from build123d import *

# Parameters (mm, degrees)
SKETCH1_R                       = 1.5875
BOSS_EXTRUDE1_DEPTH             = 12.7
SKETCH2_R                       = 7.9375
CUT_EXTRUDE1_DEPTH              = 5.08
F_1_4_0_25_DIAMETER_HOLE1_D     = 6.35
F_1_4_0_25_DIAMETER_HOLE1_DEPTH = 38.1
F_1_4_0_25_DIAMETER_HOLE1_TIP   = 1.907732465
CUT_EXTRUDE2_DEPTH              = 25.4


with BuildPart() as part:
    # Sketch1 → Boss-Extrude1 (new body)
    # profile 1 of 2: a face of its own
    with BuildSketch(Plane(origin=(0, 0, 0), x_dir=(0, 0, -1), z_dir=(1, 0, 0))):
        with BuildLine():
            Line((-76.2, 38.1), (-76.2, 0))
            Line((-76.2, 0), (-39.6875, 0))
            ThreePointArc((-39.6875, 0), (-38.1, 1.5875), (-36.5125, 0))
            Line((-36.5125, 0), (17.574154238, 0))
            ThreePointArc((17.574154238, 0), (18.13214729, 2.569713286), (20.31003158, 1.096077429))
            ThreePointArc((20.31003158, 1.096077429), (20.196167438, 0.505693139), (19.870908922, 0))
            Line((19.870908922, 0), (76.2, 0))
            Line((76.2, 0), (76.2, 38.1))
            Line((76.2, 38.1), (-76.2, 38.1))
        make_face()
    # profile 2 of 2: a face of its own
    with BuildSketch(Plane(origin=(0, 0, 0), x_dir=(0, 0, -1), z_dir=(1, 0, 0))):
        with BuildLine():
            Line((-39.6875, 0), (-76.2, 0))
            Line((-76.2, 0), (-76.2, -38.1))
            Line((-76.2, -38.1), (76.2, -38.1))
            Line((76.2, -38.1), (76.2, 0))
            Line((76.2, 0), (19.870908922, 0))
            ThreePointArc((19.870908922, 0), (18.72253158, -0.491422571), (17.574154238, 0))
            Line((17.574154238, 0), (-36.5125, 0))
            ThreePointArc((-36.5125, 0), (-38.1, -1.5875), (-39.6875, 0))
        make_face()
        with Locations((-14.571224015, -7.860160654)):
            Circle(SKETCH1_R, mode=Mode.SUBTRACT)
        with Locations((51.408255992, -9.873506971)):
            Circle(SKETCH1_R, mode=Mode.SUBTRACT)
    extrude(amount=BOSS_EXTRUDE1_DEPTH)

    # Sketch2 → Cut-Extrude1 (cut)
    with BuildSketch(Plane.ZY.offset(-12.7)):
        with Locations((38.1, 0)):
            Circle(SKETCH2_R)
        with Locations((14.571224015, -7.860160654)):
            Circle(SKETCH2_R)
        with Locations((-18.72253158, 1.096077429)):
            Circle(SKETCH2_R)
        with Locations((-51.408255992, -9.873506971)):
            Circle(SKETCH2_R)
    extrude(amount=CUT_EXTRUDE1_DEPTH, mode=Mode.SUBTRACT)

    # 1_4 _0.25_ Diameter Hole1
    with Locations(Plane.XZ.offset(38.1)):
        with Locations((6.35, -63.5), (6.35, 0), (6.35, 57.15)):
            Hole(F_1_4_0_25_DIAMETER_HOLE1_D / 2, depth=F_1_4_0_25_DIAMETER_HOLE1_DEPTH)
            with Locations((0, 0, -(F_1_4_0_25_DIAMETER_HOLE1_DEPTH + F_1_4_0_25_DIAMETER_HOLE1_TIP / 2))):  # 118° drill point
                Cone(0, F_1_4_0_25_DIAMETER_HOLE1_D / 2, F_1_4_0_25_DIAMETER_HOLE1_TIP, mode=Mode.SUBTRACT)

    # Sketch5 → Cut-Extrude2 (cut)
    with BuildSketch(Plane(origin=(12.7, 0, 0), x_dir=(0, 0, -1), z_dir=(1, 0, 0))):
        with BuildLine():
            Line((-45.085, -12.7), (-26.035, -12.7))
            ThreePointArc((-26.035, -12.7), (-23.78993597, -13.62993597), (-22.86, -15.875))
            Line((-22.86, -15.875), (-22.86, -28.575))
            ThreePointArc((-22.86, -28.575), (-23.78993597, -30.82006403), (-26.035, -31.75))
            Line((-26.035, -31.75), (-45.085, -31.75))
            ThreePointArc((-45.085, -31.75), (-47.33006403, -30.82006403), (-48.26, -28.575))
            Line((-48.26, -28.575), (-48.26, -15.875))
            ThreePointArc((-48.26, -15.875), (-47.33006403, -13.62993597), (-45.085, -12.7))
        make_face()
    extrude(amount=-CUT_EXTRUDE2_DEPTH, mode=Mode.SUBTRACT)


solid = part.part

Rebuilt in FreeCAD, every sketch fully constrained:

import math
import FreeCAD as App
import Part
import Sketcher

V = App.Vector
Q = App.Units.Quantity


def add_polygon(sketch, points):
    """Adds a closed chain of lines whose ends are joined by coincident constraints."""
    first, n = sketch.GeometryCount, len(points)
    for a, b in zip(points, points[1:] + points[:1]):
        sketch.addGeometry(Part.LineSegment(App.Vector(*a, 0), App.Vector(*b, 0)), False)
    for i in range(n):
        sketch.addConstraint(Sketcher.Constraint("Coincident", first + i, 2, first + (i + 1) % n, 1))

doc = App.newDocument("Part")
params = doc.addObject("Spreadsheet::Sheet", "Params")
for row, (alias, value) in enumerate([
    ("sketch1_width", "3 in"),
    ("sketch1_height", "6 in"),
    ("sketch1_diameter", "0.125 in"),
    ("pad1_length", "0.5 in"),
    ("sketch2_diameter", "0.625 in"),
    ("pocket1_length", "0.2 in"),
    ("sketch3_diameter", "0.25 in"),
    ("hole_diameter", "0.25 in"),
    ("hole_depth", "1.5 in"),
    ("sketch4_width", "0.5 in"),
    ("sketch4_radius", "0.125 in"),
    ("sketch4_height", "0.75 in"),
    ("pocket2_length", "1 in"),
], start=1):
    params.set(f"A{row}", alias)
    params.set(f"B{row}", "=" + value)
    params.setAlias(f"B{row}", alias)

body = doc.addObject("PartDesign::Body", "Body")

sketch1 = body.newObject("Sketcher::SketchObject", "Sketch")
sketch1.AttachmentSupport = (doc.getObject("YZ_Plane"), [""])
sketch1.MapMode = "FlatFace"
add_polygon(sketch1, [(38.1, 76.2), (-38.1, 76.2), (-38.1, -76.2), (38.1, -76.2)])
sketch1.addGeometry(Part.Circle(V(0, 38.1, 0), V(0, 0, 1), 1.5875), False)
sketch1.addGeometry(Part.ArcOfCircle(Part.Circle(V(1.096077, -18.722532, 0), V(0, 0, 1), 1.5875), math.radians(-90), math.radians(133.665145)), False)
sketch1.addGeometry(Part.ArcOfCircle(Part.Circle(V(1.096077, -18.722532, 0), V(0, 0, 1), 1.5875), math.radians(-133.665145), math.radians(-90)), False)
sketch1.addGeometry(Part.ArcOfCircle(Part.Circle(V(1.096077, -18.722532, 0), V(0, 0, 1), 1.5875), math.radians(133.665145), math.radians(226.334855)), False)
sketch1.addGeometry(Part.Circle(V(-7.860161, 14.571224, 0), V(0, 0, 1), 1.5875), False)
sketch1.addGeometry(Part.Circle(V(-9.873507, -51.408256, 0), V(0, 0, 1), 1.5875), False)
sketch1.addConstraint([
    Sketcher.Constraint("Tangent", 5, 1, 6, 2),
    Sketcher.Constraint("Tangent", 6, 1, 7, 2),
    Sketcher.Constraint("Tangent", 7, 1, 5, 2),
    Sketcher.Constraint("Horizontal", 0),
    Sketcher.Constraint("Vertical", 1),
    Sketcher.Constraint("Horizontal", 2),
    Sketcher.Constraint("Vertical", 3),
    Sketcher.Constraint("Equal", 4, 5),
    Sketcher.Constraint("Equal", 7, 8),
    Sketcher.Constraint("Equal", 8, 9),
    Sketcher.Constraint("Symmetric", 0, 2, 2, 2, -1, 1),
    Sketcher.Constraint("PointOnObject", 4, 3, -2),
    Sketcher.Constraint("PointOnObject", 6, 1, -2),
    Sketcher.Constraint("PointOnObject", 7, 1, -2),
    Sketcher.Constraint("Vertical", 7, 3, 5, 1),
    Sketcher.Constraint("DistanceX", 0, 2, 0, 1, Q("3 in")),
    Sketcher.Constraint("DistanceY", 1, 2, 1, 1, Q("6 in")),
    Sketcher.Constraint("Diameter", 4, Q("0.125 in")),
    Sketcher.Constraint("DistanceY", -1, 1, 4, 3, Q("1.5 in")),
    Sketcher.Constraint("DistanceY", 5, 3, -1, 1, Q("18.722532 mm")),
    Sketcher.Constraint("DistanceX", 8, 3, -1, 1, Q("7.860161 mm")),
    Sketcher.Constraint("DistanceY", 6, 1, -1, 1, Q("19.870909 mm")),
    Sketcher.Constraint("DistanceY", 9, 3, 8, 3, Q("65.97948 mm")),
    Sketcher.Constraint("DistanceY", -1, 1, 8, 3, Q("14.571224 mm")),
    Sketcher.Constraint("DistanceX", 9, 3, -1, 1, Q("9.873507 mm")),
])
sketch1.setExpression("Constraints[19]", "Params.sketch1_width")
sketch1.setExpression("Constraints[20]", "Params.sketch1_height")
sketch1.setExpression("Constraints[21]", "Params.sketch1_diameter")
pad1 = body.newObject("PartDesign::Pad", "Pad")
pad1.Profile = sketch1
pad1.setExpression("Length", "Params.pad1_length")

sketch2 = body.newObject("Sketcher::SketchObject", "Sketch001")
sketch2.AttachmentSupport = (doc.getObject("YZ_Plane"), [""])
sketch2.MapMode = "FlatFace"
sketch2.AttachmentOffset = App.Placement(V(0, 0, 0.5 * 25.4), App.Rotation())
sketch2.addGeometry([
    Part.Circle(V(0, 38.1, 0), V(0, 0, 1), 7.9375),
    Part.Circle(V(-7.860161, 14.571224, 0), V(0, 0, 1), 7.9375),
    Part.Circle(V(1.096077, -18.722532, 0), V(0, 0, 1), 7.9375),
    Part.Circle(V(-9.873507, -51.408256, 0), V(0, 0, 1), 7.9375),
], False)
sketch2.addConstraint([
    Sketcher.Constraint("Equal", 0, 1),
    Sketcher.Constraint("Equal", 1, 2),
    Sketcher.Constraint("Equal", 2, 3),
    Sketcher.Constraint("PointOnObject", 0, 3, -2),
    Sketcher.Constraint("Diameter", 0, Q("0.625 in")),
    Sketcher.Constraint("DistanceY", -1, 1, 0, 3, Q("1.5 in")),
    Sketcher.Constraint("DistanceX", 1, 3, -1, 1, Q("7.860161 mm")),
    Sketcher.Constraint("DistanceY", 2, 3, -1, 1, Q("18.722532 mm")),
    Sketcher.Constraint("DistanceX", 1, 3, 2, 3, Q("8.956238 mm")),
    Sketcher.Constraint("DistanceY", 3, 3, 1, 3, Q("65.97948 mm")),
    Sketcher.Constraint("DistanceY", -1, 1, 1, 3, Q("14.571224 mm")),
    Sketcher.Constraint("DistanceX", 3, 3, -1, 1, Q("9.873507 mm")),
])
sketch2.setExpression("Constraints[4]", "Params.sketch2_diameter")
pocket1 = body.newObject("PartDesign::Pocket", "Pocket")
pocket1.Profile = sketch2
pocket1.setExpression("Length", "Params.pocket1_length")

sketch3 = body.newObject("Sketcher::SketchObject", "Sketch002")
sketch3.AttachmentSupport = (doc.getObject("XZ_Plane"), [""])
sketch3.MapMode = "FlatFace"
sketch3.AttachmentOffset = App.Placement(V(0, 0, 1.5 * 25.4), App.Rotation())
sketch3.addGeometry([
    Part.Circle(V(6.35, -63.5, 0), V(0, 0, 1), 3.175),
    Part.Circle(V(6.35, 0, 0), V(0, 0, 1), 3.175),
    Part.Circle(V(6.35, 57.15, 0), V(0, 0, 1), 3.175),
], False)
sketch3.addConstraint([
    Sketcher.Constraint("Equal", 0, 1),
    Sketcher.Constraint("Equal", 1, 2),
    Sketcher.Constraint("PointOnObject", 1, 3, -1),
    Sketcher.Constraint("Vertical", 0, 3, 1, 3),
    Sketcher.Constraint("Vertical", 1, 3, 2, 3),
    Sketcher.Constraint("Diameter", 0, Q("0.25 in")),
    Sketcher.Constraint("DistanceY", 0, 3, -1, 1, Q("2.5 in")),
    Sketcher.Constraint("DistanceX", -1, 1, 0, 3, Q("0.25 in")),
    Sketcher.Constraint("DistanceY", -1, 1, 2, 3, Q("2.25 in")),
])
sketch3.setExpression("Constraints[5]", "Params.sketch3_diameter")
doc.recompute()
hole = body.newObject("PartDesign::Hole", "Hole")
hole.Profile = sketch3
hole.ThreadType = "None"
hole.setExpression("Diameter", "Params.hole_diameter")
hole.DepthType = "Dimension"
hole.setExpression("Depth", "Params.hole_depth")
hole.DrillPoint = "Angled"
hole.DrillPointAngle = 118

sketch4 = body.newObject("Sketcher::SketchObject", "Sketch003")
sketch4.AttachmentSupport = (doc.getObject("YZ_Plane"), [""])
sketch4.MapMode = "FlatFace"
sketch4.AttachmentOffset = App.Placement(V(0, 0, 0.5 * 25.4), App.Rotation())
sketch4.addGeometry([
    Part.LineSegment(V(-12.7, 26.035, 0), V(-12.7, 45.085, 0)),
    Part.ArcOfCircle(Part.Circle(V(-15.875, 45.085, 0), V(0, 0, 1), 3.175), math.radians(0), math.radians(90)),
    Part.LineSegment(V(-15.875, 48.26, 0), V(-28.575, 48.26, 0)),
    Part.ArcOfCircle(Part.Circle(V(-28.575, 45.085, 0), V(0, 0, 1), 3.175), math.radians(90), math.radians(180)),
    Part.LineSegment(V(-31.75, 45.085, 0), V(-31.75, 26.035, 0)),
    Part.ArcOfCircle(Part.Circle(V(-28.575, 26.035, 0), V(0, 0, 1), 3.175), math.radians(-180), math.radians(-90)),
    Part.LineSegment(V(-28.575, 22.86, 0), V(-15.875, 22.86, 0)),
    Part.ArcOfCircle(Part.Circle(V(-15.875, 26.035, 0), V(0, 0, 1), 3.175), math.radians(-90), math.radians(0)),
], False)
sketch4.addConstraint([
    Sketcher.Constraint("Tangent", 0, 2, 1, 1),
    Sketcher.Constraint("Tangent", 1, 2, 2, 1),
    Sketcher.Constraint("Tangent", 2, 2, 3, 1),
    Sketcher.Constraint("Tangent", 3, 2, 4, 1),
    Sketcher.Constraint("Tangent", 4, 2, 5, 1),
    Sketcher.Constraint("Tangent", 5, 2, 6, 1),
    Sketcher.Constraint("Tangent", 6, 2, 7, 1),
    Sketcher.Constraint("Tangent", 7, 2, 0, 1),
    Sketcher.Constraint("Vertical", 0),
    Sketcher.Constraint("Horizontal", 2),
    Sketcher.Constraint("Vertical", 4),
    Sketcher.Constraint("Horizontal", 6),
    Sketcher.Constraint("Equal", 1, 3),
    Sketcher.Constraint("Equal", 3, 5),
    Sketcher.Constraint("Equal", 5, 7),
    Sketcher.Constraint("DistanceX", 2, 2, 2, 1, Q("0.5 in")),
    Sketcher.Constraint("Radius", 1, Q("0.125 in")),
    Sketcher.Constraint("DistanceY", 0, 1, 0, 2, Q("0.75 in")),
    Sketcher.Constraint("DistanceX", 0, 2, -1, 1, Q("0.5 in")),
    Sketcher.Constraint("DistanceY", -1, 1, 1, 2, Q("1.9 in")),
])
sketch4.setExpression("Constraints[15]", "Params.sketch4_width")
sketch4.setExpression("Constraints[16]", "Params.sketch4_radius")
sketch4.setExpression("Constraints[17]", "Params.sketch4_height")
pocket2 = body.newObject("PartDesign::Pocket", "Pocket001")
pocket2.Profile = sketch4
pocket2.setExpression("Length", "Params.pocket2_length")

doc.recompute()
